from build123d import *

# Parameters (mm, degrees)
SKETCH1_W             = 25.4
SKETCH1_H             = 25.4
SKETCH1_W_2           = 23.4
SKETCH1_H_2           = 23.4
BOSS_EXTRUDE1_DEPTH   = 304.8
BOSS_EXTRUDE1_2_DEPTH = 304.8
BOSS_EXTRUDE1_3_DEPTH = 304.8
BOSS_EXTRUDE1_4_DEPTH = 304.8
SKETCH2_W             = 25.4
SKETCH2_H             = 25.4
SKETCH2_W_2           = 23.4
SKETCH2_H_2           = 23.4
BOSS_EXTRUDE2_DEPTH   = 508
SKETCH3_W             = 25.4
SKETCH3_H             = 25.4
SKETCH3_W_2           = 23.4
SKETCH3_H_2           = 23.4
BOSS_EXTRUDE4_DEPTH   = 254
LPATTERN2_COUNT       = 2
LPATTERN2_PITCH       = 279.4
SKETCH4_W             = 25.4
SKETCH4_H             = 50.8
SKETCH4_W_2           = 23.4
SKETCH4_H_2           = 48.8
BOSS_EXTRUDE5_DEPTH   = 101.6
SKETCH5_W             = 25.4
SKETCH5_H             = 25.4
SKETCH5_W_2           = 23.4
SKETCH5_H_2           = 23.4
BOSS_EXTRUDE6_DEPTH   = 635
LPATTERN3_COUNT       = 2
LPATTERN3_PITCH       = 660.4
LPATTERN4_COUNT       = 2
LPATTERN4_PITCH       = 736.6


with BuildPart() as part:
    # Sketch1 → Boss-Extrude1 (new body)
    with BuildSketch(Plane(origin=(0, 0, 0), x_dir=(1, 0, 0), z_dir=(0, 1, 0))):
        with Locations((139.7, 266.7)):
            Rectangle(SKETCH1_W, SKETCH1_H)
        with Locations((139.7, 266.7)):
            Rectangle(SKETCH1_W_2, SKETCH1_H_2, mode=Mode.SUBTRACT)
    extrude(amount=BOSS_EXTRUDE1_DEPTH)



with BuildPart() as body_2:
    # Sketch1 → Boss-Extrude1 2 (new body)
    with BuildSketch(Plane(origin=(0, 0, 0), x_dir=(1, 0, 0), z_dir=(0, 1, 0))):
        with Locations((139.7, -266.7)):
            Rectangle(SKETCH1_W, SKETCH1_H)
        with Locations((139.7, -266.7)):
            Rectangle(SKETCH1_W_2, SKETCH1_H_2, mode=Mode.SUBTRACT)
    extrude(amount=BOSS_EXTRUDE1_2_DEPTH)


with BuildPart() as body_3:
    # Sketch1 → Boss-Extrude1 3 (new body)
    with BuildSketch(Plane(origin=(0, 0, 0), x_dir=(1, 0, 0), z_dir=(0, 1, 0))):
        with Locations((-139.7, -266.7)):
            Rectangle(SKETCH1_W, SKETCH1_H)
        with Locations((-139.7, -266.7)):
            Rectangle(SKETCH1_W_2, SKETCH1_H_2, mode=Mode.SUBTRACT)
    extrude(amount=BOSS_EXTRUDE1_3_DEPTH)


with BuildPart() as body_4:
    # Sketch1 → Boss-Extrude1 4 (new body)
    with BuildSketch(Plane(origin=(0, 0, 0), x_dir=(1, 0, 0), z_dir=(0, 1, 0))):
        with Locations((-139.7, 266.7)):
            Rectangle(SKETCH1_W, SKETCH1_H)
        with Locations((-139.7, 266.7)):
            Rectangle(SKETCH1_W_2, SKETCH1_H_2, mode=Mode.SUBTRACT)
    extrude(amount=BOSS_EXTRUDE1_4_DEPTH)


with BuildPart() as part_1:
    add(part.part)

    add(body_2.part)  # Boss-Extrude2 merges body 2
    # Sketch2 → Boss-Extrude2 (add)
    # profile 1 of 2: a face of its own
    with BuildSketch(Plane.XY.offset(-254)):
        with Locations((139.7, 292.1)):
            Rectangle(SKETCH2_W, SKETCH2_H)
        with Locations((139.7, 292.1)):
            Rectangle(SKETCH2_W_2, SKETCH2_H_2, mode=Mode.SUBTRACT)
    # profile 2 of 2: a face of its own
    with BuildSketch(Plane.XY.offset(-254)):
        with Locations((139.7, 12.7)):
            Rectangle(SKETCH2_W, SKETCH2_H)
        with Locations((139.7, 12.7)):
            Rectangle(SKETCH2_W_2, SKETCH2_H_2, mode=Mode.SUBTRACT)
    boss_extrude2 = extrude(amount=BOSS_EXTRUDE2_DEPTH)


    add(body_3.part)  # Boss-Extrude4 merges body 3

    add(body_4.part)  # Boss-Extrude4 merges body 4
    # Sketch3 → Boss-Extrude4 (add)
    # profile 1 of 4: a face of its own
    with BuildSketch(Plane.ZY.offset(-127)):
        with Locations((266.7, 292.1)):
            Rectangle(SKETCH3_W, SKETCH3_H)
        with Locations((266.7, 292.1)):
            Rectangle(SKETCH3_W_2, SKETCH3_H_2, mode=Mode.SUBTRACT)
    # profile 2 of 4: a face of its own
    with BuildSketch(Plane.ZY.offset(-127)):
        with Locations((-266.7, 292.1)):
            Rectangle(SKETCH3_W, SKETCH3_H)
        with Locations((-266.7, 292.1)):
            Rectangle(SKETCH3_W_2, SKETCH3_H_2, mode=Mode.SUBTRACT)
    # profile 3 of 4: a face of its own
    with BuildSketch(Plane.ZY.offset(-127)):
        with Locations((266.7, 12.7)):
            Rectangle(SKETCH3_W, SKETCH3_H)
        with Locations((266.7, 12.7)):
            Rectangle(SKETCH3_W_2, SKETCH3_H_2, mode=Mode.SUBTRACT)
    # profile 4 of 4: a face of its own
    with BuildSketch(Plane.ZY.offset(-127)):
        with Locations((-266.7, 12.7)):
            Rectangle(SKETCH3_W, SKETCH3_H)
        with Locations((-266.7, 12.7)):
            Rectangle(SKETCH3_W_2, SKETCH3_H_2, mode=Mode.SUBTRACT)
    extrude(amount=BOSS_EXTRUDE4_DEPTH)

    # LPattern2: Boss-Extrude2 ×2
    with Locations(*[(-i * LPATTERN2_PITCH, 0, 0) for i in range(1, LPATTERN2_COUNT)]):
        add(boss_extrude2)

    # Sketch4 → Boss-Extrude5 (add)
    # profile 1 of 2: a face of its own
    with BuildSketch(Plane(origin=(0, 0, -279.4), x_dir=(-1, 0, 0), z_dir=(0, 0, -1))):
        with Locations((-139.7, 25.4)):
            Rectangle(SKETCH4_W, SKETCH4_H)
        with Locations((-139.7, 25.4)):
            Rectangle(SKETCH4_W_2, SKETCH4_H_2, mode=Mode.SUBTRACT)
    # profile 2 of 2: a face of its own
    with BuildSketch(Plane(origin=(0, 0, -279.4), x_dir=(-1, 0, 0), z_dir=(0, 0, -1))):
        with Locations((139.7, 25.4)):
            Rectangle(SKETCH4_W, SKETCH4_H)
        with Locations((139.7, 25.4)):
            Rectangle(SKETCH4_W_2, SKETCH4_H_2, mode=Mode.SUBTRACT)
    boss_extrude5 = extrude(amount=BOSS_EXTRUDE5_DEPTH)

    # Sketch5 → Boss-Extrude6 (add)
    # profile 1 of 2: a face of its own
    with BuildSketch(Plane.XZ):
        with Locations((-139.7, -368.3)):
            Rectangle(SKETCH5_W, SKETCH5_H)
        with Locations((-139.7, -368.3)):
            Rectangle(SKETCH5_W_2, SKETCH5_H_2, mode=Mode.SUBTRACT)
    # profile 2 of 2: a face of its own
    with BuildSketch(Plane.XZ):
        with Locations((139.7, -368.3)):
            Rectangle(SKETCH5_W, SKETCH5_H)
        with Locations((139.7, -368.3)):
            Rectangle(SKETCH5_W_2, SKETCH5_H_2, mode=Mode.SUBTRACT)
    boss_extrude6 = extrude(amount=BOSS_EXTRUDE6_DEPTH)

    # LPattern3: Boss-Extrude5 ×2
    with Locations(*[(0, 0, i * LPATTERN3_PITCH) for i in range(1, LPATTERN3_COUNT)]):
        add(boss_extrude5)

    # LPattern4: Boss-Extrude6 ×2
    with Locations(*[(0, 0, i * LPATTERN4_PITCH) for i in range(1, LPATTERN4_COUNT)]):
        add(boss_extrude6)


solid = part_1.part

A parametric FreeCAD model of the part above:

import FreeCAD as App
import Part
import Sketcher
from FreeCAD import Vector
Q = App.Units.Quantity

doc = App.newDocument("Part")
body = doc.addObject("PartDesign::Body", "Body")

sketch1 = body.newObject("Sketcher::SketchObject", "Sketch")
sketch1.AttachmentSupport = (doc.getObject("XZ_Plane"), [""])
sketch1.MapMode = "FlatFace"
sketch1.addGeometry([
    Part.LineSegment(Vector(127, -279.4, 0), Vector(127, -254, 0)),
    Part.LineSegment(Vector(127, -254, 0), Vector(152.4, -254, 0)),
    Part.LineSegment(Vector(152.4, -254, 0), Vector(152.4, -279.4, 0)),
    Part.LineSegment(Vector(152.4, -279.4, 0), Vector(127, -279.4, 0)),
    Part.LineSegment(Vector(151.4, -255, 0), Vector(128, -255, 0)),
    Part.LineSegment(Vector(128, -255, 0), Vector(128, -278.4, 0)),
    Part.LineSegment(Vector(128, -278.4, 0), Vector(151.4, -278.4, 0)),
    Part.LineSegment(Vector(151.4, -278.4, 0), Vector(151.4, -255, 0)),
], False)
sketch1.addConstraint([
    Sketcher.Constraint("Coincident", 0, 2, 1, 1),
    Sketcher.Constraint("Coincident", 1, 2, 2, 1),
    Sketcher.Constraint("Coincident", 2, 2, 3, 1),
    Sketcher.Constraint("Coincident", 3, 2, 0, 1),
    Sketcher.Constraint("Coincident", 4, 2, 5, 1),
    Sketcher.Constraint("Coincident", 5, 2, 6, 1),
    Sketcher.Constraint("Coincident", 6, 2, 7, 1),
    Sketcher.Constraint("Coincident", 7, 2, 4, 1),
    Sketcher.Constraint("Vertical", 0),
    Sketcher.Constraint("Horizontal", 1),
    Sketcher.Constraint("Vertical", 2),
    Sketcher.Constraint("Horizontal", 3),
    Sketcher.Constraint("Horizontal", 4),
    Sketcher.Constraint("Vertical", 5),
    Sketcher.Constraint("Horizontal", 6),
    Sketcher.Constraint("Vertical", 7),
    Sketcher.Constraint("Equal", 3, 0),
    Sketcher.Constraint("Equal", 6, 5),
    Sketcher.Constraint("DistanceX", 1, 1, 1, 2, Q("1 in")),
    Sketcher.Constraint("DistanceX", -1, 1, 0, 2, Q("5 in")),
    Sketcher.Constraint("DistanceY", 0, 2, -1, 1, Q("10 in")),
    Sketcher.Constraint("DistanceX", 4, 2, 4, 1, 23.4),
    Sketcher.Constraint("DistanceX", -1, 1, 4, 2, 128.0),
    Sketcher.Constraint("DistanceY", 4, 2, -1, 1, 255.0),
])
pad1 = body.newObject("PartDesign::Pad", "Pad")
pad1.Profile = sketch1
pad1.Length = Q("12 in")
pad1.Reversed = True
body2 = doc.addObject("PartDesign::Body", "Body001")

sketch2 = body2.newObject("Sketcher::SketchObject", "Sketch001")
sketch2.AttachmentSupport = (doc.getObject("XZ_Plane001"), [""])
sketch2.MapMode = "FlatFace"
sketch2.addGeometry([
    Part.LineSegment(Vector(127, 254, 0), Vector(127, 279.4, 0)),
    Part.LineSegment(Vector(127, 279.4, 0), Vector(152.4, 279.4, 0)),
    Part.LineSegment(Vector(152.4, 279.4, 0), Vector(152.4, 254, 0)),
    Part.LineSegment(Vector(152.4, 254, 0), Vector(127, 254, 0)),
    Part.LineSegment(Vector(151.4, 278.4, 0), Vector(128, 278.4, 0)),
    Part.LineSegment(Vector(128, 278.4, 0), Vector(128, 255, 0)),
    Part.LineSegment(Vector(128, 255, 0), Vector(151.4, 255, 0)),
    Part.LineSegment(Vector(151.4, 255, 0), Vector(151.4, 278.4, 0)),
], False)
sketch2.addConstraint([
    Sketcher.Constraint("Coincident", 0, 2, 1, 1),
    Sketcher.Constraint("Coincident", 1, 2, 2, 1),
    Sketcher.Constraint("Coincident", 2, 2, 3, 1),
    Sketcher.Constraint("Coincident", 3, 2, 0, 1),
    Sketcher.Constraint("Coincident", 4, 2, 5, 1),
    Sketcher.Constraint("Coincident", 5, 2, 6, 1),
    Sketcher.Constraint("Coincident", 6, 2, 7, 1),
    Sketcher.Constraint("Coincident", 7, 2, 4, 1),
    Sketcher.Constraint("Vertical", 0),
    Sketcher.Constraint("Horizontal", 1),
    Sketcher.Constraint("Vertical", 2),
    Sketcher.Constraint("Horizontal", 3),
    Sketcher.Constraint("Horizontal", 4),
    Sketcher.Constraint("Vertical", 5),
    Sketcher.Constraint("Horizontal", 6),
    Sketcher.Constraint("Vertical", 7),
    Sketcher.Constraint("Equal", 3, 0),
    Sketcher.Constraint("Equal", 6, 5),
    Sketcher.Constraint("DistanceX", 1, 1, 1, 2, Q("1 in")),
    Sketcher.Constraint("DistanceX", -1, 1, 0, 2, Q("5 in")),
    Sketcher.Constraint("DistanceY", -1, 1, 0, 2, Q("11 in")),
    Sketcher.Constraint("DistanceX", 4, 2, 4, 1, 23.4),
    Sketcher.Constraint("DistanceX", -1, 1, 4, 2, 128.0),
    Sketcher.Constraint("DistanceY", -1, 1, 4, 2, 278.4),
])
pad2 = body2.newObject("PartDesign::Pad", "Pad001")
pad2.Profile = sketch2
pad2.Length = Q("12 in")
pad2.Reversed = True
body3 = doc.addObject("PartDesign::Body", "Body002")

sketch3 = body3.newObject("Sketcher::SketchObject", "Sketch002")
sketch3.AttachmentSupport = (doc.getObject("XZ_Plane002"), [""])
sketch3.MapMode = "FlatFace"
sketch3.addGeometry([
    Part.LineSegment(Vector(-152.4, 254, 0), Vector(-152.4, 279.4, 0)),
    Part.LineSegment(Vector(-152.4, 279.4, 0), Vector(-127, 279.4, 0)),
    Part.LineSegment(Vector(-127, 279.4, 0), Vector(-127, 254, 0)),
    Part.LineSegment(Vector(-127, 254, 0), Vector(-152.4, 254, 0)),
    Part.LineSegment(Vector(-128, 278.4, 0), Vector(-151.4, 278.4, 0)),
    Part.LineSegment(Vector(-151.4, 278.4, 0), Vector(-151.4, 255, 0)),
    Part.LineSegment(Vector(-151.4, 255, 0), Vector(-128, 255, 0)),
    Part.LineSegment(Vector(-128, 255, 0), Vector(-128, 278.4, 0)),
], False)
sketch3.addConstraint([
    Sketcher.Constraint("Coincident", 0, 2, 1, 1),
    Sketcher.Constraint("Coincident", 1, 2, 2, 1),
    Sketcher.Constraint("Coincident", 2, 2, 3, 1),
    Sketcher.Constraint("Coincident", 3, 2, 0, 1),
    Sketcher.Constraint("Coincident", 4, 2, 5, 1),
    Sketcher.Constraint("Coincident", 5, 2, 6, 1),
    Sketcher.Constraint("Coincident", 6, 2, 7, 1),
    Sketcher.Constraint("Coincident", 7, 2, 4, 1),
    Sketcher.Constraint("Vertical", 0),
    Sketcher.Constraint("Horizontal", 1),
    Sketcher.Constraint("Vertical", 2),
    Sketcher.Constraint("Horizontal", 3),
    Sketcher.Constraint("Horizontal", 4),
    Sketcher.Constraint("Vertical", 5),
    Sketcher.Constraint("Horizontal", 6),
    Sketcher.Constraint("Vertical", 7),
    Sketcher.Constraint("Equal", 3, 0),
    Sketcher.Constraint("Equal", 6, 5),
    Sketcher.Constraint("DistanceX", 1, 1, 1, 2, Q("1 in")),
    Sketcher.Constraint("DistanceX", 0, 2, -1, 1, Q("6 in")),
    Sketcher.Constraint("DistanceY", -1, 1, 0, 2, Q("11 in")),
    Sketcher.Constraint("DistanceX", 4, 2, 4, 1, 23.4),
    Sketcher.Constraint("DistanceX", 4, 2, -1, 1, 151.4),
    Sketcher.Constraint("DistanceY", -1, 1, 4, 2, 278.4),
])
pad3 = body3.newObject("PartDesign::Pad", "Pad002")
pad3.Profile = sketch3
pad3.Length = Q("12 in")
pad3.Reversed = True
body4 = doc.addObject("PartDesign::Body", "Body003")

sketch4 = body4.newObject("Sketcher::SketchObject", "Sketch003")
sketch4.AttachmentSupport = (doc.getObject("XZ_Plane003"), [""])
sketch4.MapMode = "FlatFace"
sketch4.addGeometry([
    Part.LineSegment(Vector(-152.4, -279.4, 0), Vector(-152.4, -254, 0)),
    Part.LineSegment(Vector(-152.4, -254, 0), Vector(-127, -254, 0)),
    Part.LineSegment(Vector(-127, -254, 0), Vector(-127, -279.4, 0)),
    Part.LineSegment(Vector(-127, -279.4, 0), Vector(-152.4, -279.4, 0)),
    Part.LineSegment(Vector(-128, -255, 0), Vector(-151.4, -255, 0)),
    Part.LineSegment(Vector(-151.4, -255, 0), Vector(-151.4, -278.4, 0)),
    Part.LineSegment(Vector(-151.4, -278.4, 0), Vector(-128, -278.4, 0)),
    Part.LineSegment(Vector(-128, -278.4, 0), Vector(-128, -255, 0)),
], False)
sketch4.addConstraint([
    Sketcher.Constraint("Coincident", 0, 2, 1, 1),
    Sketcher.Constraint("Coincident", 1, 2, 2, 1),
    Sketcher.Constraint("Coincident", 2, 2, 3, 1),
    Sketcher.Constraint("Coincident", 3, 2, 0, 1),
    Sketcher.Constraint("Coincident", 4, 2, 5, 1),
    Sketcher.Constraint("Coincident", 5, 2, 6, 1),
    Sketcher.Constraint("Coincident", 6, 2, 7, 1),
    Sketcher.Constraint("Coincident", 7, 2, 4, 1),
    Sketcher.Constraint("Vertical", 0),
    Sketcher.Constraint("Horizontal", 1),
    Sketcher.Constraint("Vertical", 2),
    Sketcher.Constraint("Horizontal", 3),
    Sketcher.Constraint("Horizontal", 4),
    Sketcher.Constraint("Vertical", 5),
    Sketcher.Constraint("Horizontal", 6),
    Sketcher.Constraint("Vertical", 7),
    Sketcher.Constraint("Equal", 3, 0),
    Sketcher.Constraint("Equal", 6, 5),
    Sketcher.Constraint("DistanceX", 1, 1, 1, 2, Q("1 in")),
    Sketcher.Constraint("DistanceX", 0, 2, -1, 1, Q("6 in")),
    Sketcher.Constraint("DistanceY", 0, 2, -1, 1, Q("10 in")),
    Sketcher.Constraint("DistanceX", 4, 2, 4, 1, 23.4),
    Sketcher.Constraint("DistanceX", 4, 2, -1, 1, 151.4),
    Sketcher.Constraint("DistanceY", 4, 2, -1, 1, 255.0),
])
pad4 = body4.newObject("PartDesign::Pad", "Pad003")
pad4.Profile = sketch4
pad4.Length = Q("12 in")
pad4.Reversed = True
body.AllowCompound = True
doc.recompute()

boolean = body.newObject("PartDesign::Boolean", "Boolean")
boolean.Type = "Fuse"
boolean.addObjects([body2])

sketch5 = body.newObject("Sketcher::SketchObject", "Sketch004")
sketch5.AttachmentSupport = (doc.getObject("XY_Plane"), [""])
sketch5.MapMode = "FlatFace"
sketch5.AttachmentOffset = App.Placement(Vector(0, 0, -10 * 25.4), App.Rotation())
sketch5.addGeometry([
    Part.LineSegment(Vector(127, 304.8, 0), Vector(127, 279.4, 0)),
    Part.LineSegment(Vector(127, 279.4, 0), Vector(152.4, 279.4, 0)),
    Part.LineSegment(Vector(152.4, 279.4, 0), Vector(152.4, 304.8, 0)),
    Part.LineSegment(Vector(152.4, 304.8, 0), Vector(127, 304.8, 0)),
    Part.LineSegment(Vector(151.4, 280.4, 0), Vector(128, 280.4, 0)),
    Part.LineSegment(Vector(128, 280.4, 0), Vector(128, 303.8, 0)),
    Part.LineSegment(Vector(128, 303.8, 0), Vector(151.4, 303.8, 0)),
    Part.LineSegment(Vector(151.4, 303.8, 0), Vector(151.4, 280.4, 0)),
    Part.LineSegment(Vector(127, 25.4, 0), Vector(127, 0, 0)),
    Part.LineSegment(Vector(127, 0, 0), Vector(152.4, 0, 0)),
    Part.LineSegment(Vector(152.4, 0, 0), Vector(152.4, 25.4, 0)),
    Part.LineSegment(Vector(152.4, 25.4, 0), Vector(127, 25.4, 0)),
    Part.LineSegment(Vector(151.4, 1, 0), Vector(128, 1, 0)),
    Part.LineSegment(Vector(128, 1, 0), Vector(128, 24.4, 0)),
    Part.LineSegment(Vector(128, 24.4, 0), Vector(151.4, 24.4, 0)),
    Part.LineSegment(Vector(151.4, 24.4, 0), Vector(151.4, 1, 0)),
], False)
sketch5.addConstraint([
    Sketcher.Constraint("Coincident", 0, 2, 1, 1),
    Sketcher.Constraint("Coincident", 1, 2, 2, 1),
    Sketcher.Constraint("Coincident", 2, 2, 3, 1),
    Sketcher.Constraint("Coincident", 3, 2, 0, 1),
    Sketcher.Constraint("Coincident", 4, 2, 5, 1),
    Sketcher.Constraint("Coincident", 5, 2, 6, 1),
    Sketcher.Constraint("Coincident", 6, 2, 7, 1),
    Sketcher.Constraint("Coincident", 7, 2, 4, 1),
    Sketcher.Constraint("Coincident", 8, 2, 9, 1),
    Sketcher.Constraint("Coincident", 9, 2, 10, 1),
    Sketcher.Constraint("Coincident", 10, 2, 11, 1),
    Sketcher.Constraint("Coincident", 11, 2, 8, 1),
    Sketcher.Constraint("Coincident", 12, 2, 13, 1),
    Sketcher.Constraint("Coincident", 13, 2, 14, 1),
    Sketcher.Constraint("Coincident", 14, 2, 15, 1),
    Sketcher.Constraint("Coincident", 15, 2, 12, 1),
    Sketcher.Constraint("Vertical", 0),
    Sketcher.Constraint("Horizontal", 1),
    Sketcher.Constraint("Vertical", 2),
    Sketcher.Constraint("Horizontal", 3),
    Sketcher.Constraint("Horizontal", 4),
    Sketcher.Constraint("Vertical", 5),
    Sketcher.Constraint("Horizontal", 6),
    Sketcher.Constraint("Vertical", 7),
    Sketcher.Constraint("Vertical", 8),
    Sketcher.Constraint("Horizontal", 9),
    Sketcher.Constraint("Vertical", 10),
    Sketcher.Constraint("Horizontal", 11),
    Sketcher.Constraint("Horizontal", 12),
    Sketcher.Constraint("Vertical", 13),
    Sketcher.Constraint("Horizontal", 14),
    Sketcher.Constraint("Vertical", 15),
    Sketcher.Constraint("PointOnObject", 8, 2, -1),
    Sketcher.Constraint("Vertical", 3, 2, 8, 2),
    Sketcher.Constraint("Vertical", 2, 2, 9, 2),
    Sketcher.Constraint("Vertical", 5, 2, 12, 2),
    Sketcher.Constraint("Vertical", 7, 2, 14, 2),
    Sketcher.Constraint("Equal", 11, 0),
    Sketcher.Constraint("Equal", 14, 5),
    Sketcher.Constraint("Equal", 2, 8),
    Sketcher.Constraint("Equal", 7, 13),
    Sketcher.Constraint("DistanceX", 1, 1, 1, 2, Q("1 in")),
    Sketcher.Constraint("DistanceX", -1, 1, 0, 2, Q("5 in")),
    Sketcher.Constraint("DistanceY", -1, 1, 0, 2, Q("11 in")),
    Sketcher.Constraint("DistanceX", 4, 2, 4, 1, 23.4),
    Sketcher.Constraint("DistanceX", -1, 1, 4, 2, 128.0),
    Sketcher.Constraint("DistanceY", -1, 1, 4, 2, 280.4),
    Sketcher.Constraint("DistanceY", -1, 1, 12, 2, 1.0),
])
pad5 = body.newObject("PartDesign::Pad", "Pad004")
pad5.Profile = sketch5
pad5.Length = Q("20 in")
doc.recompute()

boolean2 = body.newObject("PartDesign::Boolean", "Boolean001")
boolean2.Type = "Fuse"
boolean2.addObjects([body3])
doc.recompute()

boolean3 = body.newObject("PartDesign::Boolean", "Boolean002")
boolean3.Type = "Fuse"
boolean3.addObjects([body4])

sketch6 = body.newObject("Sketcher::SketchObject", "Sketch005")
sketch6.AttachmentSupport = (doc.getObject("YZ_Plane"), [""])
sketch6.MapMode = "FlatFace"
sketch6.AttachmentOffset = App.Placement(Vector(0, 0, 5 * 25.4), App.Rotation())
sketch6.addGeometry([
    Part.LineSegment(Vector(304.8, 254, 0), Vector(279.4, 254, 0)),
    Part.LineSegment(Vector(279.4, 254, 0), Vector(279.4, 279.4, 0)),
    Part.LineSegment(Vector(279.4, 279.4, 0), Vector(304.8, 279.4, 0)),
    Part.LineSegment(Vector(304.8, 279.4, 0), Vector(304.8, 254, 0)),
    Part.LineSegment(Vector(280.4, 278.4, 0), Vector(280.4, 255, 0)),
    Part.LineSegment(Vector(280.4, 255, 0), Vector(303.8, 255, 0)),
    Part.LineSegment(Vector(303.8, 255, 0), Vector(303.8, 278.4, 0)),
    Part.LineSegment(Vector(303.8, 278.4, 0), Vector(280.4, 278.4, 0)),
    Part.LineSegment(Vector(304.8, -279.4, 0), Vector(279.4, -279.4, 0)),
    Part.LineSegment(Vector(279.4, -279.4, 0), Vector(279.4, -254, 0)),
    Part.LineSegment(Vector(279.4, -254, 0), Vector(304.8, -254, 0)),
    Part.LineSegment(Vector(304.8, -254, 0), Vector(304.8, -279.4, 0)),
    Part.LineSegment(Vector(280.4, -255, 0), Vector(280.4, -278.4, 0)),
    Part.LineSegment(Vector(280.4, -278.4, 0), Vector(303.8, -278.4, 0)),
    Part.LineSegment(Vector(303.8, -278.4, 0), Vector(303.8, -255, 0)),
    Part.LineSegment(Vector(303.8, -255, 0), Vector(280.4, -255, 0)),
    Part.LineSegment(Vector(25.4, 254, 0), Vector(0, 254, 0)),
    Part.LineSegment(Vector(0, 254, 0), Vector(0, 279.4, 0)),
    Part.LineSegment(Vector(0, 279.4, 0), Vector(25.4, 279.4, 0)),
    Part.LineSegment(Vector(25.4, 279.4, 0), Vector(25.4, 254, 0)),
    Part.LineSegment(Vector(1, 278.4, 0), Vector(1, 255, 0)),
    Part.LineSegment(Vector(1, 255, 0), Vector(24.4, 255, 0)),
    Part.LineSegment(Vector(24.4, 255, 0), Vector(24.4, 278.4, 0)),
    Part.LineSegment(Vector(24.4, 278.4, 0), Vector(1, 278.4, 0)),
    Part.LineSegment(Vector(25.4, -279.4, 0), Vector(0, -279.4, 0)),
    Part.LineSegment(Vector(0, -279.4, 0), Vector(0, -254, 0)),
    Part.LineSegment(Vector(0, -254, 0), Vector(25.4, -254, 0)),
    Part.LineSegment(Vector(25.4, -254, 0), Vector(25.4, -279.4, 0)),
    Part.LineSegment(Vector(1, -255, 0), Vector(1, -278.4, 0)),
    Part.LineSegment(Vector(1, -278.4, 0), Vector(24.4, -278.4, 0)),
    Part.LineSegment(Vector(24.4, -278.4, 0), Vector(24.4, -255, 0)),
    Part.LineSegment(Vector(24.4, -255, 0), Vector(1, -255, 0)),
], False)
sketch6.addConstraint([
    Sketcher.Constraint("Coincident", 0, 2, 1, 1),
    Sketcher.Constraint("Coincident", 1, 2, 2, 1),
    Sketcher.Constraint("Coincident", 2, 2, 3, 1),
    Sketcher.Constraint("Coincident", 3, 2, 0, 1),
    Sketcher.Constraint("Coincident", 4, 2, 5, 1),
    Sketcher.Constraint("Coincident", 5, 2, 6, 1),
    Sketcher.Constraint("Coincident", 6, 2, 7, 1),
    Sketcher.Constraint("Coincident", 7, 2, 4, 1),
    Sketcher.Constraint("Coincident", 8, 2, 9, 1),
    Sketcher.Constraint("Coincident", 9, 2, 10, 1),
    Sketcher.Constraint("Coincident", 10, 2, 11, 1),
    Sketcher.Constraint("Coincident", 11, 2, 8, 1),
    Sketcher.Constraint("Coincident", 12, 2, 13, 1),
    Sketcher.Constraint("Coincident", 13, 2, 14, 1),
    Sketcher.Constraint("Coincident", 14, 2, 15, 1),
    Sketcher.Constraint("Coincident", 15, 2, 12, 1),
    Sketcher.Constraint("Coincident", 16, 2, 17, 1),
    Sketcher.Constraint("Coincident", 17, 2, 18, 1),
    Sketcher.Constraint("Coincident", 18, 2, 19, 1),
    Sketcher.Constraint("Coincident", 19, 2, 16, 1),
    Sketcher.Constraint("Coincident", 20, 2, 21, 1),
    Sketcher.Constraint("Coincident", 21, 2, 22, 1),
    Sketcher.Constraint("Coincident", 22, 2, 23, 1),
    Sketcher.Constraint("Coincident", 23, 2, 20, 1),
    Sketcher.Constraint("Coincident", 24, 2, 25, 1),
    Sketcher.Constraint("Coincident", 25, 2, 26, 1),
    Sketcher.Constraint("Coincident", 26, 2, 27, 1),
    Sketcher.Constraint("Coincident", 27, 2, 24, 1),
    Sketcher.Constraint("Coincident", 28, 2, 29, 1),
    Sketcher.Constraint("Coincident", 29, 2, 30, 1),
    Sketcher.Constraint("Coincident", 30, 2, 31, 1),
    Sketcher.Constraint("Coincident", 31, 2, 28, 1),
    Sketcher.Constraint("Horizontal", 0),
    Sketcher.Constraint("Vertical", 1),
    Sketcher.Constraint("Horizontal", 2),
    Sketcher.Constraint("Vertical", 3),
    Sketcher.Constraint("Vertical", 4),
    Sketcher.Constraint("Horizontal", 5),
    Sketcher.Constraint("Vertical", 6),
    Sketcher.Constraint("Horizontal", 7),
    Sketcher.Constraint("Horizontal", 8),
    Sketcher.Constraint("Vertical", 9),
    Sketcher.Constraint("Horizontal", 10),
    Sketcher.Constraint("Vertical", 11),
    Sketcher.Constraint("Vertical", 12),
    Sketcher.Constraint("Horizontal", 13),
    Sketcher.Constraint("Vertical", 14),
    Sketcher.Constraint("Horizontal", 15),
    Sketcher.Constraint("Horizontal", 16),
    Sketcher.Constraint("Vertical", 17),
    Sketcher.Constraint("Horizontal", 18),
    Sketcher.Constraint("Vertical", 19),
    Sketcher.Constraint("Vertical", 20),
    Sketcher.Constraint("Horizontal", 21),
    Sketcher.Constraint("Vertical", 22),
    Sketcher.Constraint("Horizontal", 23),
    Sketcher.Constraint("Horizontal", 24),
    Sketcher.Constraint("Vertical", 25),
    Sketcher.Constraint("Horizontal", 26),
    Sketcher.Constraint("Vertical", 27),
    Sketcher.Constraint("Vertical", 28),
    Sketcher.Constraint("Horizontal", 29),
    Sketcher.Constraint("Vertical", 30),
    Sketcher.Constraint("Horizontal", 31),
    Sketcher.Constraint("Symmetric", 17, 2, 24, 2, -1, 1),
    Sketcher.Constraint("Symmetric", 1, 2, 8, 2, -1),
    Sketcher.Constraint("Symmetric", 3, 2, 10, 2, -1),
    Sketcher.Constraint("Symmetric", 7, 2, 12, 2, -1),
    Sketcher.Constraint("Symmetric", 5, 2, 14, 2, -1),
    Sketcher.Constraint("Symmetric", 16, 2, 25, 2, -1),
    Sketcher.Constraint("Symmetric", 23, 2, 28, 2, -1),
    Sketcher.Constraint("Symmetric", 21, 2, 30, 2, -1),
    Sketcher.Constraint("Horizontal", 3, 2, 16, 2),
    Sketcher.Constraint("Horizontal", 2, 2, 17, 2),
    Sketcher.Constraint("Horizontal", 5, 2, 20, 2),
    Sketcher.Constraint("Horizontal", 7, 2, 22, 2),
    Sketcher.Constraint("Vertical", 19, 2, 26, 2),
    Sketcher.Constraint("Equal", 10, 16),
    Sketcher.Constraint("Equal", 15, 21),
    Sketcher.Constraint("Equal", 26, 1),
    Sketcher.Constraint("Equal", 31, 4),
    Sketcher.Constraint("DistanceX", 0, 2, 0, 1, Q("1 in")),
    Sketcher.Constraint("DistanceX", -1, 1, 0, 2, Q("11 in")),
    Sketcher.Constraint("DistanceY", -1, 1, 0, 2, Q("10 in")),
    Sketcher.Constraint("DistanceX", 5, 1, 5, 2, 23.4),
    Sketcher.Constraint("DistanceX", -1, 1, 4, 2, 280.4),
    Sketcher.Constraint("DistanceY", -1, 1, 4, 2, 255.0),
    Sketcher.Constraint("DistanceX", -1, 1, 20, 2, 1.0),
])
pad6 = body.newObject("PartDesign::Pad", "Pad005")
pad6.Profile = sketch6
pad6.Length = Q("10 in")
pad6.Reversed = True
doc.recompute()

linearpattern = body.newObject("PartDesign::LinearPattern", "LinearPattern")
linearpattern.Originals = [pad5]
linearpattern.Direction = (doc.getObject("X_Axis"), [""])
linearpattern.Mode = "offset"
linearpattern.Offset = Q("11 in")
linearpattern.Occurrences = 2
linearpattern.Reversed = True
body.Tip = linearpattern

sketch7 = body.newObject("Sketcher::SketchObject", "Sketch006")
sketch7.AttachmentSupport = (doc.getObject("XY_Plane"), [""])
sketch7.MapMode = "FlatFace"
sketch7.AttachmentOffset = App.Placement(Vector(0, 0, -11 * 25.4), App.Rotation())
sketch7.addGeometry([
    Part.LineSegment(Vector(152.4, 50.8, 0), Vector(152.4, 0, 0)),
    Part.LineSegment(Vector(152.4, 0, 0), Vector(127, 0, 0)),
    Part.LineSegment(Vector(127, 0, 0), Vector(127, 50.8, 0)),
    Part.LineSegment(Vector(127, 50.8, 0), Vector(152.4, 50.8, 0)),
    Part.LineSegment(Vector(128, 1, 0), Vector(151.4, 1, 0)),
    Part.LineSegment(Vector(151.4, 1, 0), Vector(151.4, 49.8, 0)),
    Part.LineSegment(Vector(151.4, 49.8, 0), Vector(128, 49.8, 0)),
    Part.LineSegment(Vector(128, 49.8, 0), Vector(128, 1, 0)),
    Part.LineSegment(Vector(-127, 50.8, 0), Vector(-127, 0, 0)),
    Part.LineSegment(Vector(-127, 0, 0), Vector(-152.4, 0, 0)),
    Part.LineSegment(Vector(-152.4, 0, 0), Vector(-152.4, 50.8, 0)),
    Part.LineSegment(Vector(-152.4, 50.8, 0), Vector(-127, 50.8, 0)),
    Part.LineSegment(Vector(-151.4, 1, 0), Vector(-128, 1, 0)),
    Part.LineSegment(Vector(-128, 1, 0), Vector(-128, 49.8, 0)),
    Part.LineSegment(Vector(-128, 49.8, 0), Vector(-151.4, 49.8, 0)),
    Part.LineSegment(Vector(-151.4, 49.8, 0), Vector(-151.4, 1, 0)),
], False)
sketch7.addConstraint([
    Sketcher.Constraint("Coincident", 0, 2, 1, 1),
    Sketcher.Constraint("Coincident", 1, 2, 2, 1),
    Sketcher.Constraint("Coincident", 2, 2, 3, 1),
    Sketcher.Constraint("Coincident", 3, 2, 0, 1),
    Sketcher.Constraint("Coincident", 4, 2, 5, 1),
    Sketcher.Constraint("Coincident", 5, 2, 6, 1),
    Sketcher.Constraint("Coincident", 6, 2, 7, 1),
    Sketcher.Constraint("Coincident", 7, 2, 4, 1),
    Sketcher.Constraint("Coincident", 8, 2, 9, 1),
    Sketcher.Constraint("Coincident", 9, 2, 10, 1),
    Sketcher.Constraint("Coincident", 10, 2, 11, 1),
    Sketcher.Constraint("Coincident", 11, 2, 8, 1),
    Sketcher.Constraint("Coincident", 12, 2, 13, 1),
    Sketcher.Constraint("Coincident", 13, 2, 14, 1),
    Sketcher.Constraint("Coincident", 14, 2, 15, 1),
    Sketcher.Constraint("Coincident", 15, 2, 12, 1),
    Sketcher.Constraint("Vertical", 0),
    Sketcher.Constraint("Horizontal", 1),
    Sketcher.Constraint("Vertical", 2),
    Sketcher.Constraint("Horizontal", 3),
    Sketcher.Constraint("Horizontal", 4),
    Sketcher.Constraint("Vertical", 5),
    Sketcher.Constraint("Horizontal", 6),
    Sketcher.Constraint("Vertical", 7),
    Sketcher.Constraint("Vertical", 8),
    Sketcher.Constraint("Horizontal", 9),
    Sketcher.Constraint("Vertical", 10),
    Sketcher.Constraint("Horizontal", 11),
    Sketcher.Constraint("Horizontal", 12),
    Sketcher.Constraint("Vertical", 13),
    Sketcher.Constraint("Horizontal", 14),
    Sketcher.Constraint("Vertical", 15),
    Sketcher.Constraint("Symmetric", 1, 2, 8, 2, -1, 1),
    Sketcher.Constraint("Symmetric", 0, 2, 9, 2, -2),
    Sketcher.Constraint("Symmetric", 7, 2, 12, 2, -2),
    Sketcher.Constraint("Symmetric", 5, 2, 14, 2, -2),
    Sketcher.Constraint("Horizontal", 3, 2, 10, 2),
    Sketcher.Constraint("DistanceX", 1, 2, 1, 1, Q("1 in")),
    Sketcher.Constraint("DistanceY", 0, 2, 0, 1, Q("2 in")),
    Sketcher.Constraint("DistanceX", -1, 1, 0, 2, Q("6 in")),
    Sketcher.Constraint("DistanceX", 4, 1, 4, 2, 23.4),
    Sketcher.Constraint("DistanceY", 5, 1, 5, 2, 48.8),
    Sketcher.Constraint("DistanceX", -1, 1, 4, 2, 151.4),
    Sketcher.Constraint("DistanceY", -1, 1, 4, 2, 1.0),
])
pad7 = body.newObject("PartDesign::Pad", "Pad006")
pad7.Profile = sketch7
pad7.Length = Q("4 in")
pad7.Reversed = True

sketch8 = body.newObject("Sketcher::SketchObject", "Sketch007")
sketch8.AttachmentSupport = (doc.getObject("XZ_Plane"), [""])
sketch8.MapMode = "FlatFace"
sketch8.addGeometry([
    Part.LineSegment(Vector(-152.4, -355.6, 0), Vector(-152.4, -381, 0)),
    Part.LineSegment(Vector(-152.4, -381, 0), Vector(-127, -381, 0)),
    Part.LineSegment(Vector(-127, -381, 0), Vector(-127, -355.6, 0)),
    Part.LineSegment(Vector(-127, -355.6, 0), Vector(-152.4, -355.6, 0)),
    Part.LineSegment(Vector(-128, -380, 0), Vector(-151.4, -380, 0)),
    Part.LineSegment(Vector(-151.4, -380, 0), Vector(-151.4, -356.6, 0)),
    Part.LineSegment(Vector(-151.4, -356.6, 0), Vector(-128, -356.6, 0)),
    Part.LineSegment(Vector(-128, -356.6, 0), Vector(-128, -380, 0)),
    Part.LineSegment(Vector(127, -355.6, 0), Vector(127, -381, 0)),
    Part.LineSegment(Vector(127, -381, 0), Vector(152.4, -381, 0)),
    Part.LineSegment(Vector(152.4, -381, 0), Vector(152.4, -355.6, 0)),
    Part.LineSegment(Vector(152.4, -355.6, 0), Vector(127, -355.6, 0)),
    Part.LineSegment(Vector(151.4, -380, 0), Vector(128, -380, 0)),
    Part.LineSegment(Vector(128, -380, 0), Vector(128, -356.6, 0)),
    Part.LineSegment(Vector(128, -356.6, 0), Vector(151.4, -356.6, 0)),
    Part.LineSegment(Vector(151.4, -356.6, 0), Vector(151.4, -380, 0)),
], False)
sketch8.addConstraint([
    Sketcher.Constraint("Coincident", 0, 2, 1, 1),
    Sketcher.Constraint("Coincident", 1, 2, 2, 1),
    Sketcher.Constraint("Coincident", 2, 2, 3, 1),
    Sketcher.Constraint("Coincident", 3, 2, 0, 1),
    Sketcher.Constraint("Coincident", 4, 2, 5, 1),
    Sketcher.Constraint("Coincident", 5, 2, 6, 1),
    Sketcher.Constraint("Coincident", 6, 2, 7, 1),
    Sketcher.Constraint("Coincident", 7, 2, 4, 1),
    Sketcher.Constraint("Coincident", 8, 2, 9, 1),
    Sketcher.Constraint("Coincident", 9, 2, 10, 1),
    Sketcher.Constraint("Coincident", 10, 2, 11, 1),
    Sketcher.Constraint("Coincident", 11, 2, 8, 1),
    Sketcher.Constraint("Coincident", 12, 2, 13, 1),
    Sketcher.Constraint("Coincident", 13, 2, 14, 1),
    Sketcher.Constraint("Coincident", 14, 2, 15, 1),
    Sketcher.Constraint("Coincident", 15, 2, 12, 1),
    Sketcher.Constraint("Vertical", 0),
    Sketcher.Constraint("Horizontal", 1),
    Sketcher.Constraint("Vertical", 2),
    Sketcher.Constraint("Horizontal", 3),
    Sketcher.Constraint("Horizontal", 4),
    Sketcher.Constraint("Vertical", 5),
    Sketcher.Constraint("Horizontal", 6),
    Sketcher.Constraint("Vertical", 7),
    Sketcher.Constraint("Vertical", 8),
    Sketcher.Constraint("Horizontal", 9),
    Sketcher.Constraint("Vertical", 10),
    Sketcher.Constraint("Horizontal", 11),
    Sketcher.Constraint("Horizontal", 12),
    Sketcher.Constraint("Vertical", 13),
    Sketcher.Constraint("Horizontal", 14),
    Sketcher.Constraint("Vertical", 15),
    Sketcher.Constraint("Symmetric", 1, 2, 8, 2, -2),
    Sketcher.Constraint("Symmetric", 3, 2, 10, 2, -2),
    Sketcher.Constraint("Symmetric", 7, 2, 12, 2, -2),
    Sketcher.Constraint("Symmetric", 5, 2, 14, 2, -2),
    Sketcher.Constraint("Equal", 11, 0),
    Sketcher.Constraint("Equal", 14, 5),
    Sketcher.Constraint("DistanceX", 1, 1, 1, 2, Q("1 in")),
    Sketcher.Constraint("DistanceX", 0, 2, -1, 1, Q("6 in")),
    Sketcher.Constraint("DistanceY", 0, 2, -1, 1, Q("15 in")),
    Sketcher.Constraint("DistanceX", 4, 2, 4, 1, 23.4),
    Sketcher.Constraint("DistanceX", 4, 2, -1, 1, 151.4),
    Sketcher.Constraint("DistanceY", 4, 2, -1, 1, 380.0),
])
pad8 = body.newObject("PartDesign::Pad", "Pad007")
pad8.Profile = sketch8
pad8.Length = Q("25 in")
doc.recompute()

linearpattern2 = body.newObject("PartDesign::LinearPattern", "LinearPattern001")
linearpattern2.Originals = [pad7]
linearpattern2.Direction = (doc.getObject("Z_Axis"), [""])
linearpattern2.Mode = "offset"
linearpattern2.Offset = Q("26 in")
linearpattern2.Occurrences = 2
body.Tip = linearpattern2
doc.recompute()

linearpattern3 = body.newObject("PartDesign::LinearPattern", "LinearPattern002")
linearpattern3.Originals = [pad8]
linearpattern3.Direction = (doc.getObject("Z_Axis"), [""])
linearpattern3.Mode = "offset"
linearpattern3.Offset = Q("29 in")
linearpattern3.Occurrences = 2
body.Tip = linearpattern3

doc.recompute()
